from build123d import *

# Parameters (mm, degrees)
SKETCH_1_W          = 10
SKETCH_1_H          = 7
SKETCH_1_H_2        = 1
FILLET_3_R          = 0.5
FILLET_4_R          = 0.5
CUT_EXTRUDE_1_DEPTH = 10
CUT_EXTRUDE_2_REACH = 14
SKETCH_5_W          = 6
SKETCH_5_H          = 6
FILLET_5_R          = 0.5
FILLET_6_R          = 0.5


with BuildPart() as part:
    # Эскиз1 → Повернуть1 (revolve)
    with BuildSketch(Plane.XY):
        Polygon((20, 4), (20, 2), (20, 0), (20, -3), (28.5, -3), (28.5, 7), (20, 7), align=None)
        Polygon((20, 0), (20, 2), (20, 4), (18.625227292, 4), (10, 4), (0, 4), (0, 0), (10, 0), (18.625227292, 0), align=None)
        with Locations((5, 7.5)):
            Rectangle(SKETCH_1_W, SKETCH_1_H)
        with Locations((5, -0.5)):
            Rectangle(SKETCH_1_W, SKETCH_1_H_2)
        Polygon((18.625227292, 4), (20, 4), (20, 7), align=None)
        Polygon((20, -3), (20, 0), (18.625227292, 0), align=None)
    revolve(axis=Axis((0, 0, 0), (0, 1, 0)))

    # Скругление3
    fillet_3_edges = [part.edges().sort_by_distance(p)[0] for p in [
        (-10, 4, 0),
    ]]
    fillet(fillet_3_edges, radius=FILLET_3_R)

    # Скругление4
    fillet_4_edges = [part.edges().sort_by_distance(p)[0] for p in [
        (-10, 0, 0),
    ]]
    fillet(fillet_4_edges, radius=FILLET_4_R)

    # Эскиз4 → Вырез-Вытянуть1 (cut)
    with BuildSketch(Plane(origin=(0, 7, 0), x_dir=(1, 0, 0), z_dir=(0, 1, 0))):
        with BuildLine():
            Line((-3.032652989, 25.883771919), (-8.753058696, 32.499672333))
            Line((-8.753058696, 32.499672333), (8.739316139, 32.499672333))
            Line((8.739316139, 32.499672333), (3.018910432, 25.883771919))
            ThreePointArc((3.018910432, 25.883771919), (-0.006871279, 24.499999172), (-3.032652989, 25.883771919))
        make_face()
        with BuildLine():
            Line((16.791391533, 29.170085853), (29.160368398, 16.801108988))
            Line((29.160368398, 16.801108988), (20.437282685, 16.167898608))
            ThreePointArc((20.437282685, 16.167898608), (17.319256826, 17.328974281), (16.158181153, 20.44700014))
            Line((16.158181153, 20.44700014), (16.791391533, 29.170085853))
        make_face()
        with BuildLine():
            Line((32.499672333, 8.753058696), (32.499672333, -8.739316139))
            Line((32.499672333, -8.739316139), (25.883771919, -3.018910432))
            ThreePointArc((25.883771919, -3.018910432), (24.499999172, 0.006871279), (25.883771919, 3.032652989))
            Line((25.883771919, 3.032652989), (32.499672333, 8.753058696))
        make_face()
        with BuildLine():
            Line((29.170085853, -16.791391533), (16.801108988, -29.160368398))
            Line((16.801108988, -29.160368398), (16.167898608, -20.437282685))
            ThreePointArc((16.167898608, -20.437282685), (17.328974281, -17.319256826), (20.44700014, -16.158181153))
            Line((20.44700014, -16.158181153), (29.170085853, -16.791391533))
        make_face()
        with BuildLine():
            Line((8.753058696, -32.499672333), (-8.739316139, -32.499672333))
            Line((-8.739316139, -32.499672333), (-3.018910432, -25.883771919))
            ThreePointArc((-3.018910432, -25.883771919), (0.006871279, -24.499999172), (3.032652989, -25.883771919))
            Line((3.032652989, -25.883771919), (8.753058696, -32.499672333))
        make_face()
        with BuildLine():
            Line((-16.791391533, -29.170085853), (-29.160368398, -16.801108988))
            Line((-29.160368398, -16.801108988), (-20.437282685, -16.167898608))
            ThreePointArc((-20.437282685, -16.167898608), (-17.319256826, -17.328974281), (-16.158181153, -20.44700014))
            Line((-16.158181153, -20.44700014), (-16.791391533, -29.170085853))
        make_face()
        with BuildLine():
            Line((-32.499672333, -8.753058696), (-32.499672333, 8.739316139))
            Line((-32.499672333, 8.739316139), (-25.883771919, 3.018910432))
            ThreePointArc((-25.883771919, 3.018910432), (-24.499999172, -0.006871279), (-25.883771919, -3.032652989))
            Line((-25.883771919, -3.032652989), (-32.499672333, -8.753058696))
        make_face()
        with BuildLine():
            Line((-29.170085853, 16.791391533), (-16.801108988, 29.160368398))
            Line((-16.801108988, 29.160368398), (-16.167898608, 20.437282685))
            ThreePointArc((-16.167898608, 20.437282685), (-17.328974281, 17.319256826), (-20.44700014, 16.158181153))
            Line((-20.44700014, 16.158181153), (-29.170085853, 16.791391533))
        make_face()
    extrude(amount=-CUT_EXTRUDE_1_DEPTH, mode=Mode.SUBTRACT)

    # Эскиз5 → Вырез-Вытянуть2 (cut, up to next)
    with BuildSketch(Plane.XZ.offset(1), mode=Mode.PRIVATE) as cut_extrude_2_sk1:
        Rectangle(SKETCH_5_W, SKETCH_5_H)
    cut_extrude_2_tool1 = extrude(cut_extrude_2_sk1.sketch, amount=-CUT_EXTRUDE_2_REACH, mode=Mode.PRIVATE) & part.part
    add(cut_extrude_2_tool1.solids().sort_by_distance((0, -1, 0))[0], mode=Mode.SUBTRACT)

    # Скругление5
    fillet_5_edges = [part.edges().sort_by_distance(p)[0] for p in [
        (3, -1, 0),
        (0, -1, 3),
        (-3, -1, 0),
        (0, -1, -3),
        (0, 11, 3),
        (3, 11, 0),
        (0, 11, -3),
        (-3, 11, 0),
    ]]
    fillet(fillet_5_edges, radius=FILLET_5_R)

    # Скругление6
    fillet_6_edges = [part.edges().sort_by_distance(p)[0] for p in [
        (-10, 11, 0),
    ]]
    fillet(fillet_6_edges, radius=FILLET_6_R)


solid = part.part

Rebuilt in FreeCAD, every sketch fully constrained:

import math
import FreeCAD as App
import Part
import Sketcher
from FreeCAD import Vector
Q = App.Units.Quantity


def edges_at(feature, points):
    """Names of the edges that pass closest to the given points."""
    edges = feature.Shape.Edges
    near = lambda p: min(range(len(edges)), key=lambda i: edges[i].distToShape(Part.Vertex(*p))[0])
    return sorted({f"Edge{near(p) + 1}" for p in points})


def add_polygon(sketch, points):
    """Adds a closed chain of lines whose ends are joined by coincident constraints."""
    first, n = sketch.GeometryCount, len(points)
    for a, b in zip(points, points[1:] + points[:1]):
        sketch.addGeometry(Part.LineSegment(App.Vector(*a, 0), App.Vector(*b, 0)), False)
    for i in range(n):
        sketch.addConstraint(Sketcher.Constraint("Coincident", first + i, 2, first + (i + 1) % n, 1))

doc = App.newDocument("Part")
params = doc.addObject("Spreadsheet::Sheet", "Params")
for row, (alias, value) in enumerate([
    ("sketch1_width", "10 mm"),
    ("sketch1_height", "7 mm"),
    ("sketch1_height2", "12 mm"),
    ("sketch1_height3", "1 mm"),
    ("sketch1_width2", "8.5 mm"),
    ("revolution_angle", "360 deg"),
    ("fillet_radius", "0.5 mm"),
    ("fillet2_radius", "0.5 mm"),
    ("sketch2_radius", "4 mm"),
    ("pocket1_length", "10 mm"),
    ("sketch3_width", "6 mm"),
    ("fillet3_radius", "0.5 mm"),
    ("fillet4_radius", "0.5 mm"),
], start=1):
    params.set(f"A{row}", alias)
    params.set(f"B{row}", "=" + value)
    params.setAlias(f"B{row}", alias)

body = doc.addObject("PartDesign::Body", "Body")

# Sketch on XY plane
sketch1 = body.newObject("Sketcher::SketchObject", "Sketch")
sketch1.AttachmentSupport = (doc.getObject("XY_Plane"), [""])
sketch1.MapMode = "FlatFace"
add_polygon(sketch1, [(20, -3), (28.5, -3), (28.5, 7), (20, 7), (18.6, 4), (10, 4), (10, 11), (0, 11), (0, -1), (10, -1), (10, 0), (18.6, 0)])  # lines 0-11
sketch1.addConstraint([
    Sketcher.Constraint("Horizontal", 0),
    Sketcher.Constraint("Vertical", 1),
    Sketcher.Constraint("Horizontal", 2),
    Sketcher.Constraint("Horizontal", 4),
    Sketcher.Constraint("Vertical", 5),
    Sketcher.Constraint("Horizontal", 6),
    Sketcher.Constraint("Vertical", 7),
    Sketcher.Constraint("Horizontal", 8),
    Sketcher.Constraint("Vertical", 9),
    Sketcher.Constraint("Horizontal", 10),
    Sketcher.Constraint("PointOnObject", 6, 2, -2),
    Sketcher.Constraint("PointOnObject", 9, 2, -1),
    Sketcher.Constraint("Vertical", 5, 2, 8, 2),
    Sketcher.Constraint("Vertical", 3, 2, 10, 2),
    Sketcher.Constraint("Vertical", 2, 2, 11, 2),
    Sketcher.Constraint("Equal", 8, 1),
    Sketcher.Constraint("Equal", 3, 11),
    Sketcher.Constraint("DistanceX", 6, 2, 6, 1, Q("10 mm")),
    Sketcher.Constraint("DistanceY", 5, 1, 5, 2, Q("7 mm")),
    Sketcher.Constraint("DistanceY", 7, 2, 7, 1, Q("12 mm")),
    Sketcher.Constraint("DistanceY", 9, 1, 9, 2, Q("1 mm")),
    Sketcher.Constraint("DistanceX", 0, 1, 0, 2, Q("8.5 mm")),
    Sketcher.Constraint("DistanceX", -1, 1, 2, 2, Q("20 mm")),
    Sketcher.Constraint("Distance", 3, Q("3.3 mm")),
])
sketch1.setExpression("Constraints[29]", "Params.sketch1_width")
sketch1.setExpression("Constraints[30]", "Params.sketch1_height")
sketch1.setExpression("Constraints[31]", "Params.sketch1_height2")
sketch1.setExpression("Constraints[32]", "Params.sketch1_height3")
sketch1.setExpression("Constraints[33]", "Params.sketch1_width2")
revolution = body.newObject("PartDesign::Revolution", "Revolution")
revolution.Profile = sketch1
revolution.ReferenceAxis = (sketch1, ["V_Axis"])
revolution.setExpression("Angle", "Params.revolution_angle")
doc.recompute()

fillet = body.newObject("PartDesign::Fillet", "Fillet")
fillet.Base = (revolution, edges_at(revolution, [(-10, 4, 0)]))
fillet.setExpression("Radius", "Params.fillet_radius")
doc.recompute()

fillet2 = body.newObject("PartDesign::Fillet", "Fillet001")
fillet2.Base = (fillet, edges_at(fillet, [(-10, 0, 0)]))
fillet2.setExpression("Radius", "Params.fillet2_radius")

# Sketch on XZ plane
sketch2 = body.newObject("Sketcher::SketchObject", "Sketch001")
sketch2.AttachmentSupport = (doc.getObject("XZ_Plane"), [""])
sketch2.MapMode = "FlatFace"
sketch2.AttachmentOffset = App.Placement(Vector(0, 0, -7), App.Rotation())
sketch2.addGeometry([
    Part.LineSegment(Vector(-8.8, -32.5, 0), Vector(-3, -25.9, 0)),  # 0
    Part.ArcOfCircle(Part.Circle(Vector(0, -28.5, 0), Vector(0, 0, 1), 4), math.radians(41), math.radians(139)),  # 1
    Part.LineSegment(Vector(3, -25.9, 0), Vector(8.7, -32.5, 0)),  # 2
    Part.LineSegment(Vector(8.7, -32.5, 0), Vector(-8.8, -32.5, 0)),  # 3
    Part.LineSegment(Vector(29.2, -16.8, 0), Vector(16.8, -29.2, 0)),  # 4
    Part.LineSegment(Vector(16.8, -29.2, 0), Vector(16.2, -20.4, 0)),  # 5
    Part.ArcOfCircle(Part.Circle(Vector(20.1, -20.2, 0), Vector(0, 0, 1), 4), math.radians(86), math.radians(184)),  # 6
    Part.LineSegment(Vector(20.4, -16.2, 0), Vector(29.2, -16.8, 0)),  # 7
    Part.LineSegment(Vector(32.5, 8.7, 0), Vector(32.5, -8.8, 0)),  # 8
    Part.LineSegment(Vector(32.5, -8.8, 0), Vector(25.9, -3, 0)),  # 9
    Part.ArcOfCircle(Part.Circle(Vector(28.5, 0, 0), Vector(0, 0, 1), 4), math.radians(131), math.radians(229)),  # 10
    Part.LineSegment(Vector(25.9, 3, 0), Vector(32.5, 8.7, 0)),  # 11
    Part.LineSegment(Vector(16.8, 29.2, 0), Vector(29.2, 16.8, 0)),  # 12
    Part.LineSegment(Vector(29.2, 16.8, 0), Vector(20.4, 16.2, 0)),  # 13
    Part.ArcOfCircle(Part.Circle(Vector(20.2, 20.1, 0), Vector(0, 0, 1), 4), math.radians(176), math.radians(274)),  # 14
    Part.LineSegment(Vector(16.2, 20.4, 0), Vector(16.8, 29.2, 0)),  # 15
    Part.LineSegment(Vector(-8.7, 32.5, 0), Vector(8.8, 32.5, 0)),  # 16
    Part.LineSegment(Vector(8.8, 32.5, 0), Vector(3, 25.9, 0)),  # 17
    Part.ArcOfCircle(Part.Circle(Vector(0, 28.5, 0), Vector(0, 0, 1), 4), math.radians(-139), math.radians(-41)),  # 18
    Part.LineSegment(Vector(-3, 25.9, 0), Vector(-8.7, 32.5, 0)),  # 19
    Part.LineSegment(Vector(-29.2, 16.8, 0), Vector(-16.8, 29.2, 0)),  # 20
    Part.LineSegment(Vector(-16.8, 29.2, 0), Vector(-16.2, 20.4, 0)),  # 21
    Part.ArcOfCircle(Part.Circle(Vector(-20.1, 20.2, 0), Vector(0, 0, 1), 4), math.radians(-94), math.radians(4)),  # 22
    Part.LineSegment(Vector(-20.4, 16.2, 0), Vector(-29.2, 16.8, 0)),  # 23
    Part.LineSegment(Vector(-32.5, -8.7, 0), Vector(-32.5, 8.8, 0)),  # 24
    Part.LineSegment(Vector(-32.5, 8.8, 0), Vector(-25.9, 3, 0)),  # 25
    Part.ArcOfCircle(Part.Circle(Vector(-28.5, 0, 0), Vector(0, 0, 1), 4), math.radians(-49), math.radians(49)),  # 26
    Part.LineSegment(Vector(-25.9, -3, 0), Vector(-32.5, -8.7, 0)),  # 27
    Part.LineSegment(Vector(-16.8, -29.2, 0), Vector(-29.2, -16.8, 0)),  # 28
    Part.LineSegment(Vector(-29.2, -16.8, 0), Vector(-20.4, -16.2, 0)),  # 29
    Part.ArcOfCircle(Part.Circle(Vector(-20.2, -20.1, 0), Vector(0, 0, 1), 4), math.radians(-4), math.radians(94)),  # 30
    Part.LineSegment(Vector(-16.2, -20.4, 0), Vector(-16.8, -29.2, 0)),  # 31
], False)
sketch2.addConstraint([
    Sketcher.Constraint("Tangent", 0, 2, 1, 2),
    Sketcher.Constraint("Tangent", 1, 1, 2, 1),
    Sketcher.Constraint("Coincident", 2, 2, 3, 1),
    Sketcher.Constraint("Coincident", 3, 2, 0, 1),
    Sketcher.Constraint("Coincident", 4, 2, 5, 1),
    Sketcher.Constraint("Tangent", 5, 2, 6, 2),
    Sketcher.Constraint("Tangent", 6, 1, 7, 1),
    Sketcher.Constraint("Coincident", 7, 2, 4, 1),
    Sketcher.Constraint("Coincident", 8, 2, 9, 1),
    Sketcher.Constraint("Tangent", 9, 2, 10, 2),
    Sketcher.Constraint("Tangent", 10, 1, 11, 1),
    Sketcher.Constraint("Coincident", 11, 2, 8, 1),
    Sketcher.Constraint("Coincident", 12, 2, 13, 1),
    Sketcher.Constraint("Tangent", 13, 2, 14, 2),
    Sketcher.Constraint("Tangent", 14, 1, 15, 1),
    Sketcher.Constraint("Coincident", 15, 2, 12, 1),
    Sketcher.Constraint("Coincident", 16, 2, 17, 1),
    Sketcher.Constraint("Tangent", 17, 2, 18, 2),
    Sketcher.Constraint("Tangent", 18, 1, 19, 1),
    Sketcher.Constraint("Coincident", 19, 2, 16, 1),
    Sketcher.Constraint("Coincident", 20, 2, 21, 1),
    Sketcher.Constraint("Tangent", 21, 2, 22, 2),
    Sketcher.Constraint("Tangent", 22, 1, 23, 1),
    Sketcher.Constraint("Coincident", 23, 2, 20, 1),
    Sketcher.Constraint("Coincident", 24, 2, 25, 1),
    Sketcher.Constraint("Tangent", 25, 2, 26, 2),
    Sketcher.Constraint("Tangent", 26, 1, 27, 1),
    Sketcher.Constraint("Coincident", 27, 2, 24, 1),
    Sketcher.Constraint("Coincident", 28, 2, 29, 1),
    Sketcher.Constraint("Tangent", 29, 2, 30, 2),
    Sketcher.Constraint("Tangent", 30, 1, 31, 1),
    Sketcher.Constraint("Coincident", 31, 2, 28, 1),
    Sketcher.Constraint("Horizontal", 3),
    Sketcher.Constraint("Vertical", 8),
    Sketcher.Constraint("Horizontal", 16),
    Sketcher.Constraint("Vertical", 24),
    Sketcher.Constraint("Equal", 1, 6),
    Sketcher.Constraint("Equal", 6, 10),
    Sketcher.Constraint("Equal", 10, 14),
    Sketcher.Constraint("Equal", 14, 18),
    Sketcher.Constraint("Equal", 18, 22),
    Sketcher.Constraint("Equal", 22, 26),
    Sketcher.Constraint("Equal", 26, 30),
    Sketcher.Constraint("Symmetric", 1, 3, 18, 3, -1, 1),
    Sketcher.Constraint("Symmetric", 6, 3, 22, 3, -1, 1),
    Sketcher.Constraint("Symmetric", 10, 3, 26, 3, -1, 1),
    Sketcher.Constraint("Symmetric", 14, 3, 30, 3, -1, 1),
    Sketcher.Constraint("Symmetric", 3, 2, 16, 2, -1, 1),
    Sketcher.Constraint("Symmetric", 4, 2, 20, 2, -1, 1),
    Sketcher.Constraint("Symmetric", 7, 2, 23, 2, -1, 1),
    Sketcher.Constraint("Symmetric", 8, 2, 24, 2, -1, 1),
    Sketcher.Constraint("Symmetric", 12, 2, 28, 2, -1, 1),
    Sketcher.Constraint("Symmetric", 15, 2, 31, 2, -1, 1),
    Sketcher.Constraint("Perpendicular", 0, 9),
    Sketcher.Constraint("Perpendicular", 2, 11),
    Sketcher.Constraint("Perpendicular", 4, 12),
    Sketcher.Constraint("Perpendicular", 5, 13),
    Sketcher.Constraint("Perpendicular", 7, 15),
    Sketcher.Constraint("Perpendicular", 11, 19),
    Sketcher.Constraint("Perpendicular", 19, 27),
    Sketcher.Constraint("Horizontal", 0, 2, 1, 1),
    Sketcher.Constraint("Equal", 16, 8),
    Sketcher.Constraint("Equal", 2, 5),
    Sketcher.Constraint("Equal", 5, 7),
    Sketcher.Constraint("Equal", 4, 12),
    Sketcher.Constraint("Radius", 1, Q("4 mm")),
    Sketcher.Constraint("Angle", 4, Q("-135 deg")),
    Sketcher.Constraint("DistanceY", 1, 3, 18, 3, Q("56.999998 mm")),
    Sketcher.Constraint("DistanceX", -1, 1, 10, 3, Q("28.499999 mm")),
    Sketcher.Constraint("DistanceY", 5, 2, -1, 1, Q("20.447 mm")),
    Sketcher.Constraint("DistanceX", -1, 1, 13, 2, Q("20.447 mm")),
    Sketcher.Constraint("DistanceY", 6, 3, -1, 1, Q("20.157401 mm")),
    Sketcher.Constraint("DistanceY", 0, 2, 10, 3, Q("25.876901 mm")),
    Sketcher.Constraint("DistanceY", 2, 2, 1, 1, Q("6.6159 mm")),
    Sketcher.Constraint("DistanceX", 3, 2, 3, 1, Q("17.492375 mm")),
    Sketcher.Constraint("DistanceX", 1, 3, -1, 1, Q("0.006871 mm")),
    Sketcher.Constraint("DistanceX", -1, 1, 4, 2, Q("16.791392 mm")),
    Sketcher.Constraint("DistanceY", -1, 1, 12, 2, Q("16.791392 mm")),
])
sketch2.setExpression("Constraints[65]", "Params.sketch2_radius")
pocket1 = body.newObject("PartDesign::Pocket", "Pocket")
pocket1.Profile = sketch2
pocket1.setExpression("Length", "Params.pocket1_length")
pocket1.Reversed = True

# Sketch on XZ plane
sketch3 = body.newObject("Sketcher::SketchObject", "Sketch002")
sketch3.AttachmentSupport = (doc.getObject("XZ_Plane"), [""])
sketch3.MapMode = "FlatFace"
sketch3.AttachmentOffset = App.Placement(Vector(0, 0, 1), App.Rotation())
add_polygon(sketch3, [(-3, 3), (-3, -3), (3, -3), (3, 3)])  # lines 0-3
sketch3.addConstraint([
    Sketcher.Constraint("Vertical", 0),
    Sketcher.Constraint("Horizontal", 1),
    Sketcher.Constraint("Vertical", 2),
    Sketcher.Constraint("Horizontal", 3),
    Sketcher.Constraint("Symmetric", 0, 2, 2, 2, -1, 1),
    Sketcher.Constraint("Equal", 3, 0),
    Sketcher.Constraint("DistanceX", 1, 1, 1, 2, Q("6 mm")),
])
sketch3.setExpression("Constraints[10]", "Params.sketch3_width")
pocket2 = body.newObject("PartDesign::Pocket", "Pocket001")
pocket2.Profile = sketch3
pocket2.Type = "UpToFirst"
doc.recompute()

fillet3 = body.newObject("PartDesign::Fillet", "Fillet002")
fillet3.Base = (pocket2, edges_at(pocket2, [
    (3, -1, 0),
    (0, -1, 3),
    (-3, -1, 0),
    (0, -1, -3),
    (0, 11, 3),
    (3, 11, 0),
    (0, 11, -3),
    (-3, 11, 0),
]))
fillet3.setExpression("Radius", "Params.fillet3_radius")
doc.recompute()

fillet4 = body.newObject("PartDesign::Fillet", "Fillet003")
fillet4.Base = (fillet3, edges_at(fillet3, [(-10, 11, 0)]))
fillet4.setExpression("Radius", "Params.fillet4_radius")

doc.recompute()
